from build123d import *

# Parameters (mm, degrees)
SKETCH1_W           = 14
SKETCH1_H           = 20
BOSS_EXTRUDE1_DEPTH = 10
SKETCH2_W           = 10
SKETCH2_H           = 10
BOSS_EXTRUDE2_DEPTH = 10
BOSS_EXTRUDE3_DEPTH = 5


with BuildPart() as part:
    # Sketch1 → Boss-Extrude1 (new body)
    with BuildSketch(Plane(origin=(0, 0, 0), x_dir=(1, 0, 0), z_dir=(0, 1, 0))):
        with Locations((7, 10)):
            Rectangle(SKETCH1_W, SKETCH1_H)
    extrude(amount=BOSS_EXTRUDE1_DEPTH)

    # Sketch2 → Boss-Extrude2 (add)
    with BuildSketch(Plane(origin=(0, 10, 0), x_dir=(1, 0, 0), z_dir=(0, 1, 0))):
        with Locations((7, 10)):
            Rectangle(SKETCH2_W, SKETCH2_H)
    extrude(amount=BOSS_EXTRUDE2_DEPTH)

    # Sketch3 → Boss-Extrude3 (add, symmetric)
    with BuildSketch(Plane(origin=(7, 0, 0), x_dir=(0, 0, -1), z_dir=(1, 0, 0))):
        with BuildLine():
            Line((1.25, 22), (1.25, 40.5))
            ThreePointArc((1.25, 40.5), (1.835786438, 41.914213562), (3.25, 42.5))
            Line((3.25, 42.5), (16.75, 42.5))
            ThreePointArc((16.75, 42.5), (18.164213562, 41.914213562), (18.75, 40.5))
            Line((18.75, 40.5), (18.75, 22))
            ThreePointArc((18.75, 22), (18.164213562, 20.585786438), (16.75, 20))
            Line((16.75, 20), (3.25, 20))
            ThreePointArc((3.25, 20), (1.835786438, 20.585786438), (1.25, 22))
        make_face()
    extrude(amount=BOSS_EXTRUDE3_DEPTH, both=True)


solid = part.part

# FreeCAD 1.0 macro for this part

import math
import FreeCAD as App
import Part
import Sketcher
Q = App.Units.Quantity


def add_polygon(sketch, points):
    """Adds a closed chain of lines whose ends are joined by coincident constraints."""
    first, n = sketch.GeometryCount, len(points)
    for a, b in zip(points, points[1:] + points[:1]):
        sketch.addGeometry(Part.LineSegment(App.Vector(*a, 0), App.Vector(*b, 0)), False)
    for i in range(n):
        sketch.addConstraint(Sketcher.Constraint("Coincident", first + i, 2, first + (i + 1) % n, 1))

doc = App.newDocument("Part")
body = doc.addObject("PartDesign::Body", "Body")

# Sketch on XZ plane
sketch1 = body.newObject("Sketcher::SketchObject", "Sketch")
sketch1.AttachmentSupport = (doc.getObject("XZ_Plane"), [""])
sketch1.MapMode = "FlatFace"
add_polygon(sketch1, [(0, -20), (0, 0), (14, 0), (14, -20)])  # lines 0-3
sketch1.addConstraint([
    Sketcher.Constraint("Vertical", 0),
    Sketcher.Constraint("Horizontal", 1),
    Sketcher.Constraint("Vertical", 2),
    Sketcher.Constraint("Horizontal", 3),
    Sketcher.Constraint("Coincident", 0, 2, -1, 1),
    Sketcher.Constraint("DistanceX", 1, 1, 1, 2, Q("14 mm")),
    Sketcher.Constraint("DistanceY", 0, 1, 0, 2, Q("20 mm")),
])
pad1 = body.newObject("PartDesign::Pad", "Pad")
pad1.Profile = sketch1
pad1.Length = 10
pad1.Reversed = True

# Sketch on XZ plane
sketch2 = body.newObject("Sketcher::SketchObject", "Sketch001")
sketch2.AttachmentSupport = (doc.getObject("XZ_Plane"), [""])
sketch2.MapMode = "FlatFace"
sketch2.AttachmentOffset = App.Placement(App.Vector(0, 0, -10), App.Rotation())
add_polygon(sketch2, [(2, -15), (2, -5), (12, -5), (12, -15)])  # lines 0-3
sketch2.addConstraint([
    Sketcher.Constraint("Vertical", 0),
    Sketcher.Constraint("Horizontal", 1),
    Sketcher.Constraint("Vertical", 2),
    Sketcher.Constraint("Horizontal", 3),
    Sketcher.Constraint("Equal", 3, 0),
    Sketcher.Constraint("DistanceX", 1, 1, 1, 2, Q("10 mm")),
    Sketcher.Constraint("DistanceX", -1, 1, 0, 2, Q("2 mm")),
    Sketcher.Constraint("DistanceY", 0, 2, -1, 1, Q("5 mm")),
])
pad2 = body.newObject("PartDesign::Pad", "Pad001")
pad2.Profile = sketch2
pad2.Length = 10
pad2.Reversed = True

# Sketch on YZ plane
sketch3 = body.newObject("Sketcher::SketchObject", "Sketch002")
sketch3.AttachmentSupport = (doc.getObject("YZ_Plane"), [""])
sketch3.MapMode = "FlatFace"
sketch3.AttachmentOffset = App.Placement(App.Vector(0, 0, 7), App.Rotation())
sketch3.addGeometry([
    Part.LineSegment(App.Vector(40.5, -1.2, 0), App.Vector(22, -1.2, 0)),  # 0
    Part.ArcOfCircle(Part.Circle(App.Vector(22, -3.3, 0), App.Vector(0, 0, 1), 2), math.radians(90), math.radians(180)),  # 1
    Part.LineSegment(App.Vector(20, -3.2, 0), App.Vector(20, -16.8, 0)),  # 2
    Part.ArcOfCircle(Part.Circle(App.Vector(22, -16.7, 0), App.Vector(0, 0, 1), 2), math.radians(-180), math.radians(-90)),  # 3
    Part.LineSegment(App.Vector(22, -18.8, 0), App.Vector(40.5, -18.8, 0)),  # 4
    Part.ArcOfCircle(Part.Circle(App.Vector(40.5, -16.7, 0), App.Vector(0, 0, 1), 2), math.radians(-90), math.radians(0)),  # 5
    Part.LineSegment(App.Vector(42.5, -16.8, 0), App.Vector(42.5, -3.2, 0)),  # 6
    Part.ArcOfCircle(Part.Circle(App.Vector(40.5, -3.3, 0), App.Vector(0, 0, 1), 2), math.radians(0), math.radians(90)),  # 7
], False)
sketch3.addConstraint([
    Sketcher.Constraint("Tangent", 0, 2, 1, 1),
    Sketcher.Constraint("Tangent", 1, 2, 2, 1),
    Sketcher.Constraint("Tangent", 2, 2, 3, 1),
    Sketcher.Constraint("Tangent", 3, 2, 4, 1),
    Sketcher.Constraint("Tangent", 4, 2, 5, 1),
    Sketcher.Constraint("Tangent", 5, 2, 6, 1),
    Sketcher.Constraint("Tangent", 6, 2, 7, 1),
    Sketcher.Constraint("Tangent", 7, 2, 0, 1),
    Sketcher.Constraint("Horizontal", 0),
    Sketcher.Constraint("Vertical", 2),
    Sketcher.Constraint("Horizontal", 4),
    Sketcher.Constraint("Vertical", 6),
    Sketcher.Constraint("Equal", 1, 3),
    Sketcher.Constraint("Equal", 3, 5),
    Sketcher.Constraint("Equal", 5, 7),
    Sketcher.Constraint("Radius", 1, Q("2 mm")),
    Sketcher.Constraint("DistanceX", 0, 2, 0, 1, Q("18.5 mm")),
    Sketcher.Constraint("DistanceY", 2, 2, 2, 1, Q("13.5 mm")),
    Sketcher.Constraint("DistanceX", -1, 1, 1, 3, Q("22 mm")),
    Sketcher.Constraint("DistanceY", 1, 3, -1, 1, Q("3.25 mm")),
])
pad3 = body.newObject("PartDesign::Pad", "Pad002")
pad3.Profile = sketch3
pad3.Length = 10
pad3.Midplane = True

doc.recompute()
